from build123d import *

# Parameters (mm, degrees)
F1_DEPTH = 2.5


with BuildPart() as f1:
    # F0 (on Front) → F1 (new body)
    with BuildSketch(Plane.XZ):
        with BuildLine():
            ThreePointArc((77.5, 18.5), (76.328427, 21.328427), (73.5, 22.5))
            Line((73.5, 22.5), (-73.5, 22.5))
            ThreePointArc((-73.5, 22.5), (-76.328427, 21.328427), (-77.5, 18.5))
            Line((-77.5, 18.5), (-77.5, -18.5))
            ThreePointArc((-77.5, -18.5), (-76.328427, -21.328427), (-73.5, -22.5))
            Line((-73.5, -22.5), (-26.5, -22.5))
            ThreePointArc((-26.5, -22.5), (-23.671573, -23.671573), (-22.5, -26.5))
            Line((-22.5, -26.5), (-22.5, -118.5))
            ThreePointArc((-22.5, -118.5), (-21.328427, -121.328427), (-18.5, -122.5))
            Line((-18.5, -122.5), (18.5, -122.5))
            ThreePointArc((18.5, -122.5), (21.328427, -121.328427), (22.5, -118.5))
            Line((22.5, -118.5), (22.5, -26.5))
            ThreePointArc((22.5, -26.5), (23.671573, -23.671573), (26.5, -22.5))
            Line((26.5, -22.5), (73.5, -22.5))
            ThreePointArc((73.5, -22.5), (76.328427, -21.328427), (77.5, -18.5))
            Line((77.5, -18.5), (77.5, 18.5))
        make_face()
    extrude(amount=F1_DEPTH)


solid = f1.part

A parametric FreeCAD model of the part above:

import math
import FreeCAD as App
import Part
import Sketcher
Q = App.Units.Quantity

doc = App.newDocument("Part")
body = doc.addObject("PartDesign::Body", "Body")

# Sketch on XZ plane
sketch1 = doc.addObject("Sketcher::SketchObject", "Sketch")
body.addObject(sketch1)
sketch1.AttachmentSupport = (doc.XZ_Plane, [""])
sketch1.MapMode = "FlatFace"
sketch1.addGeometry(Part.ArcOfCircle(Part.Circle(App.Vector(73.5, 18.5, 0), App.Vector(0, 0, 1), 4), math.radians(0.000006), math.radians(89.999994)), False)
sketch1.addGeometry(Part.LineSegment(App.Vector(73.5, 22.5, 0), App.Vector(-73.5, 22.5, 0)), False)
sketch1.addGeometry(Part.ArcOfCircle(Part.Circle(App.Vector(-73.5, 18.5, 0), App.Vector(0, 0, 1), 4), math.radians(90.000006), math.radians(179.999994)), False)
sketch1.addGeometry(Part.LineSegment(App.Vector(-77.5, 18.5, 0), App.Vector(-77.5, -18.5, 0)), False)
sketch1.addGeometry(Part.ArcOfCircle(Part.Circle(App.Vector(-73.5, -18.5, 0), App.Vector(0, 0, 1), 4), math.radians(-179.999994), math.radians(-90.000006)), False)
sketch1.addGeometry(Part.LineSegment(App.Vector(-73.5, -22.5, 0), App.Vector(-26.5, -22.5, 0)), False)
sketch1.addGeometry(Part.ArcOfCircle(Part.Circle(App.Vector(-26.5, -26.5, 0), App.Vector(0, 0, 1), 4), math.radians(0.000006), math.radians(89.999994)), False)
sketch1.addGeometry(Part.LineSegment(App.Vector(-22.5, -26.5, 0), App.Vector(-22.5, -118.5, 0)), False)
sketch1.addGeometry(Part.ArcOfCircle(Part.Circle(App.Vector(-18.5, -118.5, 0), App.Vector(0, 0, 1), 4), math.radians(-179.999994), math.radians(-90.000006)), False)
sketch1.addGeometry(Part.LineSegment(App.Vector(-18.5, -122.5, 0), App.Vector(18.5, -122.5, 0)), False)
sketch1.addGeometry(Part.ArcOfCircle(Part.Circle(App.Vector(18.5, -118.5, 0), App.Vector(0, 0, 1), 4), math.radians(-89.999994), math.radians(-0.000006)), False)
sketch1.addGeometry(Part.LineSegment(App.Vector(22.5, -118.5, 0), App.Vector(22.5, -26.5, 0)), False)
sketch1.addGeometry(Part.ArcOfCircle(Part.Circle(App.Vector(26.5, -26.5, 0), App.Vector(0, 0, 1), 4), math.radians(90.000006), math.radians(179.999994)), False)
sketch1.addGeometry(Part.LineSegment(App.Vector(26.5, -22.5, 0), App.Vector(73.5, -22.5, 0)), False)
sketch1.addGeometry(Part.ArcOfCircle(Part.Circle(App.Vector(73.5, -18.5, 0), App.Vector(0, 0, 1), 4), math.radians(-89.999994), math.radians(-0.000006)), False)
sketch1.addGeometry(Part.LineSegment(App.Vector(77.5, -18.5, 0), App.Vector(77.5, 18.5, 0)), False)
sketch1.addConstraint(Sketcher.Constraint("Tangent", 0, 2, 1, 1))
sketch1.addConstraint(Sketcher.Constraint("Tangent", 1, 2, 2, 1))
sketch1.addConstraint(Sketcher.Constraint("Tangent", 2, 2, 3, 1))
sketch1.addConstraint(Sketcher.Constraint("Tangent", 3, 2, 4, 1))
sketch1.addConstraint(Sketcher.Constraint("Tangent", 4, 2, 5, 1))
sketch1.addConstraint(Sketcher.Constraint("Tangent", 5, 2, 6, 2))
sketch1.addConstraint(Sketcher.Constraint("Tangent", 6, 1, 7, 1))
sketch1.addConstraint(Sketcher.Constraint("Tangent", 7, 2, 8, 1))
sketch1.addConstraint(Sketcher.Constraint("Tangent", 8, 2, 9, 1))
sketch1.addConstraint(Sketcher.Constraint("Tangent", 9, 2, 10, 1))
sketch1.addConstraint(Sketcher.Constraint("Tangent", 10, 2, 11, 1))
sketch1.addConstraint(Sketcher.Constraint("Tangent", 11, 2, 12, 2))
sketch1.addConstraint(Sketcher.Constraint("Tangent", 12, 1, 13, 1))
sketch1.addConstraint(Sketcher.Constraint("Tangent", 13, 2, 14, 1))
sketch1.addConstraint(Sketcher.Constraint("Tangent", 14, 2, 15, 1))
sketch1.addConstraint(Sketcher.Constraint("Tangent", 15, 2, 0, 1))
sketch1.addConstraint(Sketcher.Constraint("Horizontal", 1))
sketch1.addConstraint(Sketcher.Constraint("Vertical", 3))
sketch1.addConstraint(Sketcher.Constraint("Horizontal", 5))
sketch1.addConstraint(Sketcher.Constraint("Vertical", 7))
sketch1.addConstraint(Sketcher.Constraint("Horizontal", 9))
sketch1.addConstraint(Sketcher.Constraint("Vertical", 11))
sketch1.addConstraint(Sketcher.Constraint("Horizontal", 13))
sketch1.addConstraint(Sketcher.Constraint("Vertical", 15))
sketch1.addConstraint(Sketcher.Constraint("Equal", 0, 2))
sketch1.addConstraint(Sketcher.Constraint("Equal", 2, 4))
sketch1.addConstraint(Sketcher.Constraint("Equal", 4, 6))
sketch1.addConstraint(Sketcher.Constraint("Equal", 6, 8))
sketch1.addConstraint(Sketcher.Constraint("Equal", 8, 10))
sketch1.addConstraint(Sketcher.Constraint("Equal", 10, 12))
sketch1.addConstraint(Sketcher.Constraint("Equal", 12, 14))
sketch1.addConstraint(Sketcher.Constraint("Symmetric", 0, 3, 4, 3, -1, 1))
sketch1.addConstraint(Sketcher.Constraint("Symmetric", 6, 3, 12, 3, -2))
sketch1.addConstraint(Sketcher.Constraint("Equal", 9, 3))
sketch1.addConstraint(Sketcher.Constraint("Radius", 0, Q("4 mm")))
sketch1.addConstraint(Sketcher.Constraint("DistanceX", 1, 2, 1, 1, Q("147 mm")))
sketch1.addConstraint(Sketcher.Constraint("DistanceX", 5, 1, 5, 2, Q("47 mm")))
sketch1.addConstraint(Sketcher.Constraint("DistanceY", 7, 2, 7, 1, Q("92 mm")))
pad1 = doc.addObject("PartDesign::Pad", "Pad")
body.addObject(pad1)
pad1.Profile = sketch1
pad1.Length = 2.5

doc.recompute()
